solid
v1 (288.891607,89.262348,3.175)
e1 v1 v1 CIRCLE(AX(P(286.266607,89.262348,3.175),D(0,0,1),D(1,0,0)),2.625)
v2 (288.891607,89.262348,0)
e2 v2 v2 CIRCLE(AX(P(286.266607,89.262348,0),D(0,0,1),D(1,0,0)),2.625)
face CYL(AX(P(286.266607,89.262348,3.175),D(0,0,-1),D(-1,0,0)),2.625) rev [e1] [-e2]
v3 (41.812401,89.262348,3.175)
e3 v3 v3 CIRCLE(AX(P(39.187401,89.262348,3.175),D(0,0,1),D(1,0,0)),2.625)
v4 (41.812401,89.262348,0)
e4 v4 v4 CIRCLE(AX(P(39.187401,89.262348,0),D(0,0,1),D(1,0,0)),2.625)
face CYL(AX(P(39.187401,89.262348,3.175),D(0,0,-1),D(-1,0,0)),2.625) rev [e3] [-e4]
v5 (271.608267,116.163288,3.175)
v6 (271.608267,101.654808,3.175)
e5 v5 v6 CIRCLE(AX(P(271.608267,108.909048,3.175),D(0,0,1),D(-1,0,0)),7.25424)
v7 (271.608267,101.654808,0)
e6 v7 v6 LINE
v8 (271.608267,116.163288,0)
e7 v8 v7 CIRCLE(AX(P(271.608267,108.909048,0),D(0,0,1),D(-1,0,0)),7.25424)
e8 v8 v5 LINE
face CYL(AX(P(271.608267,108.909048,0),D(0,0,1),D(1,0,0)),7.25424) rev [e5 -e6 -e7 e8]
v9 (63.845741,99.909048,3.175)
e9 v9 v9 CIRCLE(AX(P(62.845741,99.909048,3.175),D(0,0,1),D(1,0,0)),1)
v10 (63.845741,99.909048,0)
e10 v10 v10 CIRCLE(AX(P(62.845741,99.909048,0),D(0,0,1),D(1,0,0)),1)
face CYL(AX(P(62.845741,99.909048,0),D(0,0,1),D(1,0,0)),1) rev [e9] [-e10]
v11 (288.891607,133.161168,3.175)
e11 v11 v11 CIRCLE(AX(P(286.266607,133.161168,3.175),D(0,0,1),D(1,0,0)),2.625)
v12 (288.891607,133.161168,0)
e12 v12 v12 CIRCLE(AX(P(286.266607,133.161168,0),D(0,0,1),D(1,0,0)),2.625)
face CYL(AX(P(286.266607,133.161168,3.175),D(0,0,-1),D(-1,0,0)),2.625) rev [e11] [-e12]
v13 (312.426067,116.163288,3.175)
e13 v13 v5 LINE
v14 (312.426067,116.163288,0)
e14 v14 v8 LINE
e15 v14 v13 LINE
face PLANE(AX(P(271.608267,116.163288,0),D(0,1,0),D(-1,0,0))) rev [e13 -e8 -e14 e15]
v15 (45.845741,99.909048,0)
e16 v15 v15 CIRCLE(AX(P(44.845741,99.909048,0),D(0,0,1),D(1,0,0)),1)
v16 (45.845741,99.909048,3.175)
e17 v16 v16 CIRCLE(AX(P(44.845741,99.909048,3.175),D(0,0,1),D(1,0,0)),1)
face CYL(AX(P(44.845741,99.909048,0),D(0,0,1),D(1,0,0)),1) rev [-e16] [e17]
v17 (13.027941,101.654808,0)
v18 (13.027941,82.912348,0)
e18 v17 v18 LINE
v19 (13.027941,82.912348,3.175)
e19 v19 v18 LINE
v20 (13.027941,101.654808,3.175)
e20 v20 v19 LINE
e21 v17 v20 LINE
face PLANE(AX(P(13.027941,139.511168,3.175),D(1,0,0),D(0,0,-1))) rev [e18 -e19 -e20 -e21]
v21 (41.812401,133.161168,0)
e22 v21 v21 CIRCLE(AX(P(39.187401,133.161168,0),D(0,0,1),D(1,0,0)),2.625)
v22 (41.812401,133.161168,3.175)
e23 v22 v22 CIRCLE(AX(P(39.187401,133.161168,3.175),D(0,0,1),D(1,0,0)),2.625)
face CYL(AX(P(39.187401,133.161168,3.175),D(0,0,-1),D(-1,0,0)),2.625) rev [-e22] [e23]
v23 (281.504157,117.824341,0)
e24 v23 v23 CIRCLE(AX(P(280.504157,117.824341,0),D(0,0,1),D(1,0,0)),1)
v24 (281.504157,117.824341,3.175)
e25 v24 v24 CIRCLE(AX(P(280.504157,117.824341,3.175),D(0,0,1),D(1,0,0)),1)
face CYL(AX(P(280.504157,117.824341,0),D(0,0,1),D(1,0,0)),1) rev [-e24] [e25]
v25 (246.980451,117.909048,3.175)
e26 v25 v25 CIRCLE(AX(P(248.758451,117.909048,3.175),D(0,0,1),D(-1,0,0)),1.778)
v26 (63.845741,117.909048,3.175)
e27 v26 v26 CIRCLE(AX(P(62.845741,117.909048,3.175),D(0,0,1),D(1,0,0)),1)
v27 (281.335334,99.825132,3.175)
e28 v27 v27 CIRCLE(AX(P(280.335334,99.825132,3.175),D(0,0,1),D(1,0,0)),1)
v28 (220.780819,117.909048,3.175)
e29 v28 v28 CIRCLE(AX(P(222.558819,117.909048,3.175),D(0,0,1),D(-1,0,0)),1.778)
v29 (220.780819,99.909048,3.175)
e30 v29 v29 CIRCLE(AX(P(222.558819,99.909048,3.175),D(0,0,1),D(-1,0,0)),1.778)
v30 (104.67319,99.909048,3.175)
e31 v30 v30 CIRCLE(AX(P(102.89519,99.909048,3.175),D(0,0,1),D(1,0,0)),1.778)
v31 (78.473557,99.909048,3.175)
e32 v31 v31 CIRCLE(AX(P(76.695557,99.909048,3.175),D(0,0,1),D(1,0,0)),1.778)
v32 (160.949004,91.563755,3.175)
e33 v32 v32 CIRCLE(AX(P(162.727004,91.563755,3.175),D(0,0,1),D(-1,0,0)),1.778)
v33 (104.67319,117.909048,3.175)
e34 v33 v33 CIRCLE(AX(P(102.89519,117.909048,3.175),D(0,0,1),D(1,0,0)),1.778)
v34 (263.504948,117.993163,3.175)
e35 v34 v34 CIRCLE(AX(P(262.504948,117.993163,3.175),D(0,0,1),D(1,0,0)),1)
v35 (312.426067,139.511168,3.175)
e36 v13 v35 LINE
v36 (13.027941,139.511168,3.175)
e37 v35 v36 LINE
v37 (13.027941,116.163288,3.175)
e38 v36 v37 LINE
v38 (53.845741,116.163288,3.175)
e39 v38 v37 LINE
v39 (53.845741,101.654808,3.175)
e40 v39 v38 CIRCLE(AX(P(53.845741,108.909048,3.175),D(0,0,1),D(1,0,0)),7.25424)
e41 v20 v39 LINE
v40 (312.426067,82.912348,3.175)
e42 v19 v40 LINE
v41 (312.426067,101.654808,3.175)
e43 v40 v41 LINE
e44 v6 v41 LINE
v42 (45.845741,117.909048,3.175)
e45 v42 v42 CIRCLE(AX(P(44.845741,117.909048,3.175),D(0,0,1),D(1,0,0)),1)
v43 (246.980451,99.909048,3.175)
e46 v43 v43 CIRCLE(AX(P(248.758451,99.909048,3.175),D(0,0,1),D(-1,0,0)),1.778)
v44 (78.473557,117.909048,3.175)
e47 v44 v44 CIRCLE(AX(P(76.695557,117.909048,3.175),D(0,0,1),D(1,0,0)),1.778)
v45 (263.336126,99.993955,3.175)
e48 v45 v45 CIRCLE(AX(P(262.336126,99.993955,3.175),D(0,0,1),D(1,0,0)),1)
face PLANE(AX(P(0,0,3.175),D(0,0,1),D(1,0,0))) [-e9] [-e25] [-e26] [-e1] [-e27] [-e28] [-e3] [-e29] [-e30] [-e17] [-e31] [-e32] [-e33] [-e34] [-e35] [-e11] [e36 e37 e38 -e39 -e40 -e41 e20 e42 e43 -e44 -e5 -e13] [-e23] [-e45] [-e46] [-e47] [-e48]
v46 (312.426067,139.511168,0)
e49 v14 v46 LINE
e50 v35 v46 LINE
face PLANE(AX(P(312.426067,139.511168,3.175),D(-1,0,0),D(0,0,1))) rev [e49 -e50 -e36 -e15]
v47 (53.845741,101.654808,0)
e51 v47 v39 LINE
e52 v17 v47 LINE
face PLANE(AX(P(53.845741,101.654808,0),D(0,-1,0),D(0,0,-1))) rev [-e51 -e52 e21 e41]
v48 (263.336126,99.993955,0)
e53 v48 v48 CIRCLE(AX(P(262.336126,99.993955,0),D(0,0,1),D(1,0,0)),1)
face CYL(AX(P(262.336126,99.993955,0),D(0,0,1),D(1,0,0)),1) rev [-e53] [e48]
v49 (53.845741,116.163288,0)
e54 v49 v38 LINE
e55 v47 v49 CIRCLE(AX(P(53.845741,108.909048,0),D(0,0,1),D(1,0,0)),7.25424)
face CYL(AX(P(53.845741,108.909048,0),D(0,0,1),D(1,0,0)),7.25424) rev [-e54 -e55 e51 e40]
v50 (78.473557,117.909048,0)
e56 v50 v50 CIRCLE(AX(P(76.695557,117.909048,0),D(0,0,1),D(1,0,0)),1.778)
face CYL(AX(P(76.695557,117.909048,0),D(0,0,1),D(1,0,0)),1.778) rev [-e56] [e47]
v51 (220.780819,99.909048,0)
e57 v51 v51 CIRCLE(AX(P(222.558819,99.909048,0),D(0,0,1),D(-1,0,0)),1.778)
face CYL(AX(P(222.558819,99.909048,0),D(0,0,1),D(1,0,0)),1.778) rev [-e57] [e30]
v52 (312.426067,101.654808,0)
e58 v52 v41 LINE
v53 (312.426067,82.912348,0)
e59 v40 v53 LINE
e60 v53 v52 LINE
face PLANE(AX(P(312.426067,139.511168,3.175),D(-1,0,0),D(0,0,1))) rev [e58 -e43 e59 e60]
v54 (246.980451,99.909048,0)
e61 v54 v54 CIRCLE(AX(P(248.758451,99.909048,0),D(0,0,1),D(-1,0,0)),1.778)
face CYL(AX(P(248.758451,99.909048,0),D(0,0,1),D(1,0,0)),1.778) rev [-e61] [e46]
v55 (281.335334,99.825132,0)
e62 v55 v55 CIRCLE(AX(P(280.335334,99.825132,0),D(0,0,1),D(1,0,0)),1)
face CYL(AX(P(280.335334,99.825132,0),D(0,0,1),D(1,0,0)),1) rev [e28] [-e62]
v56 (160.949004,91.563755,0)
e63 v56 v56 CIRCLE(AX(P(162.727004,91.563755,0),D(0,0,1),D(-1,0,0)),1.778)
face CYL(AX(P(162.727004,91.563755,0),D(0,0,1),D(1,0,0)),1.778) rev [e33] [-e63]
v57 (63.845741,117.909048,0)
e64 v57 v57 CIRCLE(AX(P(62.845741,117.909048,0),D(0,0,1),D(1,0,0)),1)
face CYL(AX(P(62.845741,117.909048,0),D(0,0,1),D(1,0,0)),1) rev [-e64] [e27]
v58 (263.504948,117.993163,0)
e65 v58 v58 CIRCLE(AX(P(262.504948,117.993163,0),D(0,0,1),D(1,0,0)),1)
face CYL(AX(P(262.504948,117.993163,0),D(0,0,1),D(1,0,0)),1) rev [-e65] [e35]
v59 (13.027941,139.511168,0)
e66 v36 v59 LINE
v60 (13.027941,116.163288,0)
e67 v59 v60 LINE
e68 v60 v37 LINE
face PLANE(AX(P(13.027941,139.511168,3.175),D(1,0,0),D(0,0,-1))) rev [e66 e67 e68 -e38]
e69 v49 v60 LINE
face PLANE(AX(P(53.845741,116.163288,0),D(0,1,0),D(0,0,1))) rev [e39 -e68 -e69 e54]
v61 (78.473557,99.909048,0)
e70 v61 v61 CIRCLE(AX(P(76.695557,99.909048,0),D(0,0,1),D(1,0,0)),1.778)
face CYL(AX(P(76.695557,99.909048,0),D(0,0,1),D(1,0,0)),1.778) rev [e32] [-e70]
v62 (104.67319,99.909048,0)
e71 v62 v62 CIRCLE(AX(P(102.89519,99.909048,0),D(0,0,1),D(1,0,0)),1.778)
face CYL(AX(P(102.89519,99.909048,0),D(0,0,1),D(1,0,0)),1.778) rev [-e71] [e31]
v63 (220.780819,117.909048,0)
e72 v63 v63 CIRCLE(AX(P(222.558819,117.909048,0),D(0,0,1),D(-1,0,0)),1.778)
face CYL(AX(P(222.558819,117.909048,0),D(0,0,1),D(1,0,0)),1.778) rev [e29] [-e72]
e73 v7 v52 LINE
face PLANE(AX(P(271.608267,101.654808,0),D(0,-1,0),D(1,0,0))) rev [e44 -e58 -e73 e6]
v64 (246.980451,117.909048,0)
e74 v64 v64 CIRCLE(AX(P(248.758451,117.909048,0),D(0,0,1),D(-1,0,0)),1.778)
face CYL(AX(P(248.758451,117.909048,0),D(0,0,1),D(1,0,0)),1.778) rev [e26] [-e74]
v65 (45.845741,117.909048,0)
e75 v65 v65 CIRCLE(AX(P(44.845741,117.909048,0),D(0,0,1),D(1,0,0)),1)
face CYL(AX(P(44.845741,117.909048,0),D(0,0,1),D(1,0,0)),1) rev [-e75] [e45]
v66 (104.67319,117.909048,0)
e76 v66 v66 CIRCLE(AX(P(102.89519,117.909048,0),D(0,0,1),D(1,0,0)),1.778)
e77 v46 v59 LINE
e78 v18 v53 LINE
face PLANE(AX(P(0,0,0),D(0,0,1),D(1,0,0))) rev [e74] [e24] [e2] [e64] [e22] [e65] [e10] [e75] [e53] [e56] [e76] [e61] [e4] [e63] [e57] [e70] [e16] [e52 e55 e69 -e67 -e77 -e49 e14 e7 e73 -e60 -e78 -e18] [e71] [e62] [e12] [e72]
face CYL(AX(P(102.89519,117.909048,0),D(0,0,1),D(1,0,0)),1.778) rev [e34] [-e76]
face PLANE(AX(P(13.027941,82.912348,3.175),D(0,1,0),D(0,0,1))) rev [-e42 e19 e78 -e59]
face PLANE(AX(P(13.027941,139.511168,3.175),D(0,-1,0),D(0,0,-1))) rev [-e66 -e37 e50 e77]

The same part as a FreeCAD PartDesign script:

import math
import FreeCAD as App
import Part
import Sketcher
from FreeCAD import Vector
Q = App.Units.Quantity


def add_polygon(sketch, points):
    """Adds a closed chain of lines whose ends are joined by coincident constraints."""
    first, n = sketch.GeometryCount, len(points)
    for a, b in zip(points, points[1:] + points[:1]):
        sketch.addGeometry(Part.LineSegment(App.Vector(*a, 0), App.Vector(*b, 0)), False)
    for i in range(n):
        sketch.addConstraint(Sketcher.Constraint("Coincident", first + i, 2, first + (i + 1) % n, 1))

doc = App.newDocument("Part")
params = doc.addObject("Spreadsheet::Sheet", "Params")
for row, (alias, value) in enumerate([
    ("pad1_length", "0.125 in"),
    ("sketch3_diameter", "0.14 in"),
    ("sketch4_width", "1.607 in"),
], start=1):
    params.set(f"A{row}", alias)
    params.set(f"B{row}", "=" + value)
    params.setAlias(f"B{row}", alias)

body = doc.addObject("PartDesign::Body", "Body")

# Sketch on XY plane
sketch1 = doc.addObject("Sketcher::SketchObject", "Sketch")
body.addObject(sketch1)
sketch1.AttachmentSupport = (doc.XY_Plane, [""])
sketch1.MapMode = "FlatFace"
add_polygon(sketch1, [(13, 139.5), (13, 82.9), (312.4, 82.9), (312.4, 139.5)])  # lines 0-3
sketch1.addGeometry(Part.Circle(Vector(39.2, 89.3, 0), Vector(0, 0, 1), 2.6), False)  # 4
sketch1.addGeometry(Part.Circle(Vector(286.3, 89.3, 0), Vector(0, 0, 1), 2.6), False)  # 5
sketch1.addGeometry(Part.Circle(Vector(39.2, 133.2, 0), Vector(0, 0, 1), 2.6), False)  # 6
sketch1.addGeometry(Part.Circle(Vector(286.3, 133.2, 0), Vector(0, 0, 1), 2.6), False)  # 7
sketch1.addConstraint([
    Sketcher.Constraint("Vertical", 0),
    Sketcher.Constraint("Horizontal", 1),
    Sketcher.Constraint("Vertical", 2),
    Sketcher.Constraint("Horizontal", 3),
    Sketcher.Constraint("Equal", 4, 5),
    Sketcher.Constraint("Equal", 5, 6),
    Sketcher.Constraint("Equal", 6, 7),
    Sketcher.Constraint("Horizontal", 4, 3, 5, 3),
    Sketcher.Constraint("Horizontal", 6, 3, 7, 3),
    Sketcher.Constraint("Vertical", 4, 3, 6, 3),
    Sketcher.Constraint("Vertical", 5, 3, 7, 3),
    Sketcher.Constraint("Diameter", 4, Q("5.25 mm")),
    Sketcher.Constraint("DistanceY", 0, 2, 4, 3, Q("0.25 in")),
    Sketcher.Constraint("DistanceY", 7, 3, 2, 2, Q("0.25 in")),
    Sketcher.Constraint("DistanceY", 0, 2, 0, 1, Q("2.2283 in")),
    Sketcher.Constraint("DistanceX", 0, 2, 4, 3, Q("1.0299 in")),
    Sketcher.Constraint("DistanceX", 5, 3, 1, 2, Q("1.0299 in")),
    Sketcher.Constraint("DistanceX", -1, 1, 4, 3, Q("39.187401 mm")),
    Sketcher.Constraint("DistanceX", 1, 1, 1, 2, Q("299.398126 mm")),
    Sketcher.Constraint("DistanceY", -1, 1, 4, 3, Q("89.262348 mm")),
])
pad1 = doc.addObject("PartDesign::Pad", "Pad")
body.addObject(pad1)
pad1.Profile = sketch1
pad1.setExpression("Length", "Params.pad1_length")

# Sketch on XY plane
sketch2 = doc.addObject("Sketcher::SketchObject", "Sketch001")
body.addObject(sketch2)
sketch2.AttachmentSupport = (doc.XY_Plane, [""])
sketch2.MapMode = "FlatFace"
sketch2.AttachmentOffset = App.Placement(Vector(0, 0, 0.125 * 25.4), App.Rotation())
sketch2.addGeometry([
    Part.Circle(Vector(280.5, 117.8, 0), Vector(0, 0, 1), 1),  # 0
    Part.Circle(Vector(280.3, 99.8, 0), Vector(0, 0, 1), 1),  # 1
    Part.Circle(Vector(262.5, 118, 0), Vector(0, 0, 1), 1),  # 2
    Part.Circle(Vector(262.3, 100, 0), Vector(0, 0, 1), 1),  # 3
    Part.Circle(Vector(62.8, 117.9, 0), Vector(0, 0, 1), 1),  # 4
    Part.Circle(Vector(62.8, 99.9, 0), Vector(0, 0, 1), 1),  # 5
    Part.Circle(Vector(44.8, 117.9, 0), Vector(0, 0, 1), 1),  # 6
    Part.Circle(Vector(44.8, 99.9, 0), Vector(0, 0, 1), 1),  # 7
], False)
sketch2.addConstraint([
    Sketcher.Constraint("Equal", 0, 1),
    Sketcher.Constraint("Equal", 1, 2),
    Sketcher.Constraint("Equal", 2, 3),
    Sketcher.Constraint("Equal", 3, 4),
    Sketcher.Constraint("Equal", 4, 5),
    Sketcher.Constraint("Equal", 5, 6),
    Sketcher.Constraint("Equal", 6, 7),
    Sketcher.Constraint("Horizontal", 4, 3, 6, 3),
    Sketcher.Constraint("Horizontal", 5, 3, 7, 3),
    Sketcher.Constraint("Vertical", 4, 3, 5, 3),
    Sketcher.Constraint("Vertical", 6, 3, 7, 3),
    Sketcher.Constraint("Diameter", 0, Q("2 mm")),
    Sketcher.Constraint("DistanceY", -1, 1, 2, 3, Q("4.6454001 in")),
    Sketcher.Constraint("DistanceY", 5, 3, 4, 3, Q("18 mm")),
    Sketcher.Constraint("DistanceX", 6, 3, 4, 3, Q("18 mm")),
    Sketcher.Constraint("DistanceY", -1, 1, 0, 3, Q("117.824341 mm")),
    Sketcher.Constraint("DistanceX", -1, 1, 2, 3, Q("262.504948 mm")),
    Sketcher.Constraint("DistanceX", -1, 1, 4, 3, Q("62.845741 mm")),
    Sketcher.Constraint("DistanceY", 1, 3, 0, 3, Q("17.999208 mm")),
    Sketcher.Constraint("DistanceX", 2, 3, 0, 3, Q("17.999208 mm")),
    Sketcher.Constraint("DistanceY", 3, 3, 2, 3, Q("17.999208 mm")),
    Sketcher.Constraint("DistanceX", 3, 3, 1, 3, Q("17.999208 mm")),
    Sketcher.Constraint("DistanceX", 3, 3, 0, 3, Q("18.168031 mm")),
    Sketcher.Constraint("DistanceY", -1, 1, 4, 3, Q("117.909048 mm")),
])
pocket1 = doc.addObject("PartDesign::Pocket", "Pocket")
body.addObject(pocket1)
pocket1.Profile = sketch2
pocket1.Type = "ThroughAll"

# Sketch on XY plane
sketch3 = doc.addObject("Sketcher::SketchObject", "Sketch002")
body.addObject(sketch3)
sketch3.AttachmentSupport = (doc.XY_Plane, [""])
sketch3.MapMode = "FlatFace"
sketch3.AttachmentOffset = App.Placement(Vector(0, 0, 0.125 * 25.4), App.Rotation())
sketch3.addGeometry([
    Part.Circle(Vector(76.7, 117.9, 0), Vector(0, 0, 1), 1.8),  # 0
    Part.Circle(Vector(76.7, 99.9, 0), Vector(0, 0, 1), 1.8),  # 1
    Part.Circle(Vector(102.9, 117.9, 0), Vector(0, 0, 1), 1.8),  # 2
    Part.Circle(Vector(102.9, 99.9, 0), Vector(0, 0, 1), 1.8),  # 3
    Part.Circle(Vector(248.8, 99.9, 0), Vector(0, 0, 1), 1.8),  # 4
    Part.Circle(Vector(222.6, 99.9, 0), Vector(0, 0, 1), 1.8),  # 5
    Part.Circle(Vector(222.6, 117.9, 0), Vector(0, 0, 1), 1.8),  # 6
    Part.Circle(Vector(248.8, 117.9, 0), Vector(0, 0, 1), 1.8),  # 7
    Part.Circle(Vector(162.7, 91.6, 0), Vector(0, 0, 1), 1.8),  # 8
], False)
sketch3.addConstraint([
    Sketcher.Constraint("Equal", 0, 1),
    Sketcher.Constraint("Equal", 1, 2),
    Sketcher.Constraint("Equal", 2, 3),
    Sketcher.Constraint("Equal", 3, 4),
    Sketcher.Constraint("Equal", 4, 5),
    Sketcher.Constraint("Equal", 5, 6),
    Sketcher.Constraint("Equal", 6, 7),
    Sketcher.Constraint("Equal", 7, 8),
    Sketcher.Constraint("Horizontal", 0, 3, 2, 3),
    Sketcher.Constraint("Horizontal", 1, 3, 3, 3),
    Sketcher.Constraint("Horizontal", 3, 3, 4, 3),
    Sketcher.Constraint("Horizontal", 4, 3, 5, 3),
    Sketcher.Constraint("Horizontal", 2, 3, 6, 3),
    Sketcher.Constraint("Horizontal", 6, 3, 7, 3),
    Sketcher.Constraint("Vertical", 0, 3, 1, 3),
    Sketcher.Constraint("Vertical", 2, 3, 3, 3),
    Sketcher.Constraint("Vertical", 5, 3, 6, 3),
    Sketcher.Constraint("Vertical", 4, 3, 7, 3),
    Sketcher.Constraint("Diameter", 0, Q("0.14 in")),
    Sketcher.Constraint("DistanceY", 1, 3, 0, 3, Q("18 mm")),
    Sketcher.Constraint("DistanceX", -1, 1, 2, 3, Q("102.89519 mm")),
    Sketcher.Constraint("DistanceX", -1, 1, 4, 3, Q("248.758451 mm")),
    Sketcher.Constraint("DistanceX", -1, 1, 5, 3, Q("222.558819 mm")),
    Sketcher.Constraint("DistanceX", 1, 3, 5, 3, Q("145.863262 mm")),
    Sketcher.Constraint("DistanceY", -1, 1, 0, 3, Q("117.909048 mm")),
    Sketcher.Constraint("DistanceX", -1, 1, 8, 3, Q("162.727004 mm")),
    Sketcher.Constraint("DistanceY", -1, 1, 8, 3, Q("91.563755 mm")),
])
sketch3.setExpression("Constraints[18]", "Params.sketch3_diameter")
pocket2 = doc.addObject("PartDesign::Pocket", "Pocket001")
body.addObject(pocket2)
pocket2.Profile = sketch3
pocket2.Type = "ThroughAll"

# Sketch on XY plane
sketch4 = doc.addObject("Sketcher::SketchObject", "Sketch003")
body.addObject(sketch4)
sketch4.AttachmentSupport = (doc.XY_Plane, [""])
sketch4.MapMode = "FlatFace"
sketch4.AttachmentOffset = App.Placement(Vector(0, 0, 0.125 * 25.4), App.Rotation())
sketch4.addGeometry([
    Part.LineSegment(Vector(54, 116, 0), Vector(13, 116, 0)),  # 0
    Part.LineSegment(Vector(13, 116, 0), Vector(13, 102, 0)),  # 1
    Part.LineSegment(Vector(13, 102, 0), Vector(54, 102, 0)),  # 2
    Part.ArcOfCircle(Part.Circle(Vector(54, 109, 0), Vector(0, 0, 1), 7), math.radians(-90), math.radians(90)),  # 3
    Part.LineSegment(Vector(272, 102, 0), Vector(312, 102, 0)),  # 4
    Part.LineSegment(Vector(312, 102, 0), Vector(312, 116, 0)),  # 5
    Part.LineSegment(Vector(312, 116, 0), Vector(272, 116, 0)),  # 6
    Part.ArcOfCircle(Part.Circle(Vector(272, 109, 0), Vector(0, 0, 1), 7), math.radians(90), math.radians(270)),  # 7
], False)
sketch4.addConstraint([
    Sketcher.Constraint("Coincident", 0, 2, 1, 1),
    Sketcher.Constraint("Coincident", 1, 2, 2, 1),
    Sketcher.Constraint("Tangent", 2, 2, 3, 1),
    Sketcher.Constraint("Tangent", 3, 2, 0, 1),
    Sketcher.Constraint("Coincident", 4, 2, 5, 1),
    Sketcher.Constraint("Coincident", 5, 2, 6, 1),
    Sketcher.Constraint("Tangent", 6, 2, 7, 1),
    Sketcher.Constraint("Tangent", 7, 2, 4, 1),
    Sketcher.Constraint("Horizontal", 0),
    Sketcher.Constraint("Vertical", 1),
    Sketcher.Constraint("Horizontal", 2),
    Sketcher.Constraint("Horizontal", 4),
    Sketcher.Constraint("Vertical", 5),
    Sketcher.Constraint("Horizontal", 6),
    Sketcher.Constraint("Equal", 3, 7),
    Sketcher.Constraint("Horizontal", 3, 3, 7, 3),
    Sketcher.Constraint("Equal", 2, 4),
    Sketcher.Constraint("Radius", 3, Q("0.2856 in")),
    Sketcher.Constraint("DistanceX", 0, 2, 0, 1, Q("1.607 in")),
    Sketcher.Constraint("DistanceX", -1, 1, 3, 3, Q("53.845741 mm")),
    Sketcher.Constraint("DistanceY", -1, 1, 3, 3, Q("108.909048 mm")),
    Sketcher.Constraint("DistanceX", -1, 1, 7, 3, Q("271.608267 mm")),
])
sketch4.setExpression("Constraints[18]", "Params.sketch4_width")
pocket3 = doc.addObject("PartDesign::Pocket", "Pocket002")
body.addObject(pocket3)
pocket3.Profile = sketch4
pocket3.Type = "ThroughAll"

doc.recompute()
